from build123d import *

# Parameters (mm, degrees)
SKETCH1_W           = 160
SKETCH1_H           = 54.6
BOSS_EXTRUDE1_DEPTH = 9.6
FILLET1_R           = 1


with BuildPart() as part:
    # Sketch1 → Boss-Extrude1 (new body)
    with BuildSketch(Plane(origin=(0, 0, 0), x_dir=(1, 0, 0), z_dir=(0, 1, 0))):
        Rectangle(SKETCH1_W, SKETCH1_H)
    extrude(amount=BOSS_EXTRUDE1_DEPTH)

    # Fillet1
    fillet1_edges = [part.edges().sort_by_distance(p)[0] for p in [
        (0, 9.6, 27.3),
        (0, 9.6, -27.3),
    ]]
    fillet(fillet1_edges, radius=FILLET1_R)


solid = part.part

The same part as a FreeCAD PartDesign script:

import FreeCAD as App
import Part
import Sketcher

V = App.Vector
Q = App.Units.Quantity


def edges_at(feature, points):
    """Names of the edges that pass closest to the given points."""
    edges = feature.Shape.Edges
    near = lambda p: min(range(len(edges)), key=lambda i: edges[i].distToShape(Part.Vertex(*p))[0])
    return sorted({f"Edge{near(p) + 1}" for p in points})


def add_polygon(sketch, points):
    """Adds a closed chain of lines whose ends are joined by coincident constraints."""
    first, n = sketch.GeometryCount, len(points)
    for a, b in zip(points, points[1:] + points[:1]):
        sketch.addGeometry(Part.LineSegment(App.Vector(*a, 0), App.Vector(*b, 0)), False)
    for i in range(n):
        sketch.addConstraint(Sketcher.Constraint("Coincident", first + i, 2, first + (i + 1) % n, 1))

doc = App.newDocument("Part")
params = doc.addObject("Spreadsheet::Sheet", "Params")
for row, (alias, value) in enumerate([
    ("sketch1_width", "160 mm"),
    ("sketch1_height", "54.6 mm"),
    ("pad1_length", "9.6 mm"),
    ("fillet_radius", "1 mm"),
], start=1):
    params.set(f"A{row}", alias)
    params.set(f"B{row}", "=" + value)
    params.setAlias(f"B{row}", alias)

body = doc.addObject("PartDesign::Body", "Body")

# Sketch on XZ plane
sketch1 = body.newObject("Sketcher::SketchObject", "Sketch")
sketch1.AttachmentSupport = (doc.getObject("XZ_Plane"), [""])
sketch1.MapMode = "FlatFace"
add_polygon(sketch1, [(-80, -27), (-80, 27), (80, 27), (80, -27)])  # lines 0-3
sketch1.addConstraint([
    Sketcher.Constraint("Vertical", 0),
    Sketcher.Constraint("Horizontal", 1),
    Sketcher.Constraint("Vertical", 2),
    Sketcher.Constraint("Horizontal", 3),
    Sketcher.Constraint("Symmetric", 0, 2, 2, 2, -1, 1),
    Sketcher.Constraint("DistanceX", 1, 1, 1, 2, Q("160 mm")),
    Sketcher.Constraint("DistanceY", 0, 1, 0, 2, Q("54.6 mm")),
])
sketch1.setExpression("Constraints[9]", "Params.sketch1_width")
sketch1.setExpression("Constraints[10]", "Params.sketch1_height")
pad1 = body.newObject("PartDesign::Pad", "Pad")
pad1.Profile = sketch1
pad1.setExpression("Length", "Params.pad1_length")
pad1.Reversed = True
doc.recompute()

fillet = body.newObject("PartDesign::Fillet", "Fillet")
fillet.Base = (pad1, edges_at(pad1, [(0, 9.6, 27.3), (0, 9.6, -27.3)]))
fillet.setExpression("Radius", "Params.fillet_radius")

doc.recompute()
